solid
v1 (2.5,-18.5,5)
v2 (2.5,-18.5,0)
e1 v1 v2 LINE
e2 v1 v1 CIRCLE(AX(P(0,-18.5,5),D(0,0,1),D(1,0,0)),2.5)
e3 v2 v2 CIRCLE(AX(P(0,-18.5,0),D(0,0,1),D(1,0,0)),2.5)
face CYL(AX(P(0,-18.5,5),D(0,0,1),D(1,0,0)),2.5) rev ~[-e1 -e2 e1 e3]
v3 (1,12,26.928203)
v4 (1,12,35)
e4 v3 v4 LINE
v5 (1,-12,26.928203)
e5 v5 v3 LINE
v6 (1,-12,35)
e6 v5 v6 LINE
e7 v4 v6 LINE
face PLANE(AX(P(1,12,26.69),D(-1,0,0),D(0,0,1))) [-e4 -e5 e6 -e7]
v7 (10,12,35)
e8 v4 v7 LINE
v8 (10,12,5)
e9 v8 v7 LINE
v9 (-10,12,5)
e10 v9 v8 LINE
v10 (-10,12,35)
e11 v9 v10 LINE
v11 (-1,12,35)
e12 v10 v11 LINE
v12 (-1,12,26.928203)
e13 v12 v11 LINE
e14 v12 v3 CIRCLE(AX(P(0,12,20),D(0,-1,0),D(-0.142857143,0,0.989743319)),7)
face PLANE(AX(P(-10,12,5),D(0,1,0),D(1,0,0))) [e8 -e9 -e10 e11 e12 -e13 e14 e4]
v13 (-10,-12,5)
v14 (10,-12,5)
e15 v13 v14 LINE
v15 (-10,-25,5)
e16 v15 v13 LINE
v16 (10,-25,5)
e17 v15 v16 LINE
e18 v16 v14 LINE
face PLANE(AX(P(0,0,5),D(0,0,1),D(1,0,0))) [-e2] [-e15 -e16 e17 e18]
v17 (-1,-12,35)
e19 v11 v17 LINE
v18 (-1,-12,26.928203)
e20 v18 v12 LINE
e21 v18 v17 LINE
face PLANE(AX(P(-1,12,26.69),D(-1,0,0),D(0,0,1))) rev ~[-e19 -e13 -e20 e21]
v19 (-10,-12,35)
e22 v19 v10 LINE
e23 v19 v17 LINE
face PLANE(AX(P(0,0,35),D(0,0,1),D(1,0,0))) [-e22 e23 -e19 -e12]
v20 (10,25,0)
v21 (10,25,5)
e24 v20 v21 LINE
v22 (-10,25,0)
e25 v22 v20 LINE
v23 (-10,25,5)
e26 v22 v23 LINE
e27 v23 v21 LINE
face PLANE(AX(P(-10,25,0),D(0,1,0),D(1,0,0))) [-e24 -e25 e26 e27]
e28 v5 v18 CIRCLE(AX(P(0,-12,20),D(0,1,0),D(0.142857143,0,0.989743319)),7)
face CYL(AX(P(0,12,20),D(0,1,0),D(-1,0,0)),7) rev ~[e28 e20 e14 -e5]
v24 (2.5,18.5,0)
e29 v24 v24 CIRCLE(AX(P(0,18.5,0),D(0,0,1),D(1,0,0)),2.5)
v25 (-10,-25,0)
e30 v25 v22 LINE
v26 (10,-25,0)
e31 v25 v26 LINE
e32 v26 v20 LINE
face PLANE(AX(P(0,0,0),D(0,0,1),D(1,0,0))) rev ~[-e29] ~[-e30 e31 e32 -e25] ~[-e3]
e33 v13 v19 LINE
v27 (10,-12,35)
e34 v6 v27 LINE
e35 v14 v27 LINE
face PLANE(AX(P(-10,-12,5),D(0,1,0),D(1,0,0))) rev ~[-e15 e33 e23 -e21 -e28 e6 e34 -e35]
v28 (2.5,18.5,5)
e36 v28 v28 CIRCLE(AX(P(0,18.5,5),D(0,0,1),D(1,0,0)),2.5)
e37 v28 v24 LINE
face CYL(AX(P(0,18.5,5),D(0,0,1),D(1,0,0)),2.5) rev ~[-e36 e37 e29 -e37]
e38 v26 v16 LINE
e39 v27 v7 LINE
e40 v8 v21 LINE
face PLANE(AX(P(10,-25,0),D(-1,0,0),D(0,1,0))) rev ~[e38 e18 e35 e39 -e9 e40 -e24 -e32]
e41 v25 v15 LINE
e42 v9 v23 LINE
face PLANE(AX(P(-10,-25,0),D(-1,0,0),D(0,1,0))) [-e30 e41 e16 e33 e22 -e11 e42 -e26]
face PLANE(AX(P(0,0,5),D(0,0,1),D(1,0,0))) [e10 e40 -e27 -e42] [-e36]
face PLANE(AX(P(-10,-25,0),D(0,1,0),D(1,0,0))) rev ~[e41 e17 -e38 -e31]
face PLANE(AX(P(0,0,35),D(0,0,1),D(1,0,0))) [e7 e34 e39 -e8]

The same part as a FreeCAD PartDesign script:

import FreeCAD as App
import Part
import Sketcher
Q = App.Units.Quantity


def add_polygon(sketch, points):
    """Adds a closed chain of lines whose ends are joined by coincident constraints."""
    first, n = sketch.GeometryCount, len(points)
    for a, b in zip(points, points[1:] + points[:1]):
        sketch.addGeometry(Part.LineSegment(App.Vector(*a, 0), App.Vector(*b, 0)), False)
    for i in range(n):
        sketch.addConstraint(Sketcher.Constraint("Coincident", first + i, 2, first + (i + 1) % n, 1))

doc = App.newDocument("Part")
body = doc.addObject("PartDesign::Body", "Body")

sketch1 = body.newObject("Sketcher::SketchObject", "Sketch")
sketch1.AttachmentSupport = (doc.getObject("XY_Plane"), [""])
sketch1.MapMode = "FlatFace"
add_polygon(sketch1, [(-10, 25), (-10, -25), (10, -25), (10, 25)])
sketch1.addConstraint([
    Sketcher.Constraint("Vertical", 0),
    Sketcher.Constraint("Horizontal", 1),
    Sketcher.Constraint("Vertical", 2),
    Sketcher.Constraint("Horizontal", 3),
    Sketcher.Constraint("Symmetric", 0, 2, 2, 2, -1, 1),
    Sketcher.Constraint("DistanceX", 1, 1, 1, 2, Q("20 mm")),
    Sketcher.Constraint("DistanceY", 0, 2, 0, 1, Q("50 mm")),
])
pad1 = body.newObject("PartDesign::Pad", "Pad")
pad1.Profile = sketch1
pad1.Length = 5

sketch2 = body.newObject("Sketcher::SketchObject", "Sketch001")
sketch2.AttachmentSupport = (doc.getObject("XY_Plane"), [""])
sketch2.MapMode = "FlatFace"
sketch2.AttachmentOffset = App.Placement(App.Vector(0, 0, 5), App.Rotation())
sketch2.addGeometry([
    Part.Circle(App.Vector(0, -18.5, 0), App.Vector(0, 0, 1), 2.5),
    Part.Circle(App.Vector(0, 18.5, 0), App.Vector(0, 0, 1), 2.5),
], False)
sketch2.addConstraint([
    Sketcher.Constraint("Equal", 0, 1),
    Sketcher.Constraint("Symmetric", 0, 3, 1, 3, -1, 1),
    Sketcher.Constraint("PointOnObject", 0, 3, -2),
    Sketcher.Constraint("Diameter", 0, Q("5 mm")),
    Sketcher.Constraint("DistanceY", 0, 3, 1, 3, Q("37 mm")),
])
pocket1 = body.newObject("PartDesign::Pocket", "Pocket")
pocket1.Profile = sketch2
pocket1.Type = "ThroughAll"

sketch3 = body.newObject("Sketcher::SketchObject", "Sketch002")
sketch3.AttachmentSupport = (doc.getObject("XY_Plane"), [""])
sketch3.MapMode = "FlatFace"
sketch3.AttachmentOffset = App.Placement(App.Vector(0, 0, 5), App.Rotation())
add_polygon(sketch3, [(-10, 12), (-10, -12), (10, -12), (10, 12)])
sketch3.addConstraint([
    Sketcher.Constraint("Vertical", 0),
    Sketcher.Constraint("Horizontal", 1),
    Sketcher.Constraint("Vertical", 2),
    Sketcher.Constraint("Horizontal", 3),
    Sketcher.Constraint("Symmetric", 0, 2, 2, 2, -1, 1),
    Sketcher.Constraint("DistanceX", 1, 1, 1, 2, Q("20 mm")),
    Sketcher.Constraint("DistanceY", 0, 2, 0, 1, Q("24 mm")),
])
pad2 = body.newObject("PartDesign::Pad", "Pad001")
pad2.Profile = sketch3
pad2.Length = 30

sketch4 = body.newObject("Sketcher::SketchObject", "Sketch003")
sketch4.AttachmentSupport = (doc.getObject("XZ_Plane"), [""])
sketch4.MapMode = "FlatFace"
sketch4.AttachmentOffset = App.Placement(App.Vector(0, 0, -12), App.Rotation())
sketch4.addGeometry(Part.Circle(App.Vector(0, 20, 0), App.Vector(0, 0, 1), 7), False)
sketch4.addConstraint([
    Sketcher.Constraint("PointOnObject", 0, 3, -2),
    Sketcher.Constraint("Diameter", 0, Q("14 mm")),
    Sketcher.Constraint("DistanceY", -1, 1, 0, 3, Q("20 mm")),
])
pocket2 = body.newObject("PartDesign::Pocket", "Pocket001")
pocket2.Profile = sketch4
pocket2.Type = "ThroughAll"
pocket2.Reversed = True

sketch5 = body.newObject("Sketcher::SketchObject", "Sketch004")
sketch5.AttachmentSupport = (doc.getObject("XZ_Plane"), [""])
sketch5.MapMode = "FlatFace"
sketch5.AttachmentOffset = App.Placement(App.Vector(0, 0, -12), App.Rotation())
add_polygon(sketch5, [(1, 35), (1, 26.69), (-1, 26.69), (-1, 35)])
sketch5.addConstraint([
    Sketcher.Constraint("Vertical", 0),
    Sketcher.Constraint("Horizontal", 1),
    Sketcher.Constraint("Vertical", 2),
    Sketcher.Constraint("Horizontal", 3),
    Sketcher.Constraint("DistanceX", 1, 2, 1, 1, Q("2 mm")),
    Sketcher.Constraint("DistanceX", -1, 1, 0, 2, Q("1 mm")),
    Sketcher.Constraint("DistanceY", -1, 1, 2, 2, Q("35 mm")),
    Sketcher.Constraint("DistanceY", 0, 2, 0, 1, Q("8.31 mm")),
])
pocket3 = body.newObject("PartDesign::Pocket", "Pocket002")
pocket3.Profile = sketch5
pocket3.Type = "ThroughAll"
pocket3.Reversed = True

doc.recompute()
